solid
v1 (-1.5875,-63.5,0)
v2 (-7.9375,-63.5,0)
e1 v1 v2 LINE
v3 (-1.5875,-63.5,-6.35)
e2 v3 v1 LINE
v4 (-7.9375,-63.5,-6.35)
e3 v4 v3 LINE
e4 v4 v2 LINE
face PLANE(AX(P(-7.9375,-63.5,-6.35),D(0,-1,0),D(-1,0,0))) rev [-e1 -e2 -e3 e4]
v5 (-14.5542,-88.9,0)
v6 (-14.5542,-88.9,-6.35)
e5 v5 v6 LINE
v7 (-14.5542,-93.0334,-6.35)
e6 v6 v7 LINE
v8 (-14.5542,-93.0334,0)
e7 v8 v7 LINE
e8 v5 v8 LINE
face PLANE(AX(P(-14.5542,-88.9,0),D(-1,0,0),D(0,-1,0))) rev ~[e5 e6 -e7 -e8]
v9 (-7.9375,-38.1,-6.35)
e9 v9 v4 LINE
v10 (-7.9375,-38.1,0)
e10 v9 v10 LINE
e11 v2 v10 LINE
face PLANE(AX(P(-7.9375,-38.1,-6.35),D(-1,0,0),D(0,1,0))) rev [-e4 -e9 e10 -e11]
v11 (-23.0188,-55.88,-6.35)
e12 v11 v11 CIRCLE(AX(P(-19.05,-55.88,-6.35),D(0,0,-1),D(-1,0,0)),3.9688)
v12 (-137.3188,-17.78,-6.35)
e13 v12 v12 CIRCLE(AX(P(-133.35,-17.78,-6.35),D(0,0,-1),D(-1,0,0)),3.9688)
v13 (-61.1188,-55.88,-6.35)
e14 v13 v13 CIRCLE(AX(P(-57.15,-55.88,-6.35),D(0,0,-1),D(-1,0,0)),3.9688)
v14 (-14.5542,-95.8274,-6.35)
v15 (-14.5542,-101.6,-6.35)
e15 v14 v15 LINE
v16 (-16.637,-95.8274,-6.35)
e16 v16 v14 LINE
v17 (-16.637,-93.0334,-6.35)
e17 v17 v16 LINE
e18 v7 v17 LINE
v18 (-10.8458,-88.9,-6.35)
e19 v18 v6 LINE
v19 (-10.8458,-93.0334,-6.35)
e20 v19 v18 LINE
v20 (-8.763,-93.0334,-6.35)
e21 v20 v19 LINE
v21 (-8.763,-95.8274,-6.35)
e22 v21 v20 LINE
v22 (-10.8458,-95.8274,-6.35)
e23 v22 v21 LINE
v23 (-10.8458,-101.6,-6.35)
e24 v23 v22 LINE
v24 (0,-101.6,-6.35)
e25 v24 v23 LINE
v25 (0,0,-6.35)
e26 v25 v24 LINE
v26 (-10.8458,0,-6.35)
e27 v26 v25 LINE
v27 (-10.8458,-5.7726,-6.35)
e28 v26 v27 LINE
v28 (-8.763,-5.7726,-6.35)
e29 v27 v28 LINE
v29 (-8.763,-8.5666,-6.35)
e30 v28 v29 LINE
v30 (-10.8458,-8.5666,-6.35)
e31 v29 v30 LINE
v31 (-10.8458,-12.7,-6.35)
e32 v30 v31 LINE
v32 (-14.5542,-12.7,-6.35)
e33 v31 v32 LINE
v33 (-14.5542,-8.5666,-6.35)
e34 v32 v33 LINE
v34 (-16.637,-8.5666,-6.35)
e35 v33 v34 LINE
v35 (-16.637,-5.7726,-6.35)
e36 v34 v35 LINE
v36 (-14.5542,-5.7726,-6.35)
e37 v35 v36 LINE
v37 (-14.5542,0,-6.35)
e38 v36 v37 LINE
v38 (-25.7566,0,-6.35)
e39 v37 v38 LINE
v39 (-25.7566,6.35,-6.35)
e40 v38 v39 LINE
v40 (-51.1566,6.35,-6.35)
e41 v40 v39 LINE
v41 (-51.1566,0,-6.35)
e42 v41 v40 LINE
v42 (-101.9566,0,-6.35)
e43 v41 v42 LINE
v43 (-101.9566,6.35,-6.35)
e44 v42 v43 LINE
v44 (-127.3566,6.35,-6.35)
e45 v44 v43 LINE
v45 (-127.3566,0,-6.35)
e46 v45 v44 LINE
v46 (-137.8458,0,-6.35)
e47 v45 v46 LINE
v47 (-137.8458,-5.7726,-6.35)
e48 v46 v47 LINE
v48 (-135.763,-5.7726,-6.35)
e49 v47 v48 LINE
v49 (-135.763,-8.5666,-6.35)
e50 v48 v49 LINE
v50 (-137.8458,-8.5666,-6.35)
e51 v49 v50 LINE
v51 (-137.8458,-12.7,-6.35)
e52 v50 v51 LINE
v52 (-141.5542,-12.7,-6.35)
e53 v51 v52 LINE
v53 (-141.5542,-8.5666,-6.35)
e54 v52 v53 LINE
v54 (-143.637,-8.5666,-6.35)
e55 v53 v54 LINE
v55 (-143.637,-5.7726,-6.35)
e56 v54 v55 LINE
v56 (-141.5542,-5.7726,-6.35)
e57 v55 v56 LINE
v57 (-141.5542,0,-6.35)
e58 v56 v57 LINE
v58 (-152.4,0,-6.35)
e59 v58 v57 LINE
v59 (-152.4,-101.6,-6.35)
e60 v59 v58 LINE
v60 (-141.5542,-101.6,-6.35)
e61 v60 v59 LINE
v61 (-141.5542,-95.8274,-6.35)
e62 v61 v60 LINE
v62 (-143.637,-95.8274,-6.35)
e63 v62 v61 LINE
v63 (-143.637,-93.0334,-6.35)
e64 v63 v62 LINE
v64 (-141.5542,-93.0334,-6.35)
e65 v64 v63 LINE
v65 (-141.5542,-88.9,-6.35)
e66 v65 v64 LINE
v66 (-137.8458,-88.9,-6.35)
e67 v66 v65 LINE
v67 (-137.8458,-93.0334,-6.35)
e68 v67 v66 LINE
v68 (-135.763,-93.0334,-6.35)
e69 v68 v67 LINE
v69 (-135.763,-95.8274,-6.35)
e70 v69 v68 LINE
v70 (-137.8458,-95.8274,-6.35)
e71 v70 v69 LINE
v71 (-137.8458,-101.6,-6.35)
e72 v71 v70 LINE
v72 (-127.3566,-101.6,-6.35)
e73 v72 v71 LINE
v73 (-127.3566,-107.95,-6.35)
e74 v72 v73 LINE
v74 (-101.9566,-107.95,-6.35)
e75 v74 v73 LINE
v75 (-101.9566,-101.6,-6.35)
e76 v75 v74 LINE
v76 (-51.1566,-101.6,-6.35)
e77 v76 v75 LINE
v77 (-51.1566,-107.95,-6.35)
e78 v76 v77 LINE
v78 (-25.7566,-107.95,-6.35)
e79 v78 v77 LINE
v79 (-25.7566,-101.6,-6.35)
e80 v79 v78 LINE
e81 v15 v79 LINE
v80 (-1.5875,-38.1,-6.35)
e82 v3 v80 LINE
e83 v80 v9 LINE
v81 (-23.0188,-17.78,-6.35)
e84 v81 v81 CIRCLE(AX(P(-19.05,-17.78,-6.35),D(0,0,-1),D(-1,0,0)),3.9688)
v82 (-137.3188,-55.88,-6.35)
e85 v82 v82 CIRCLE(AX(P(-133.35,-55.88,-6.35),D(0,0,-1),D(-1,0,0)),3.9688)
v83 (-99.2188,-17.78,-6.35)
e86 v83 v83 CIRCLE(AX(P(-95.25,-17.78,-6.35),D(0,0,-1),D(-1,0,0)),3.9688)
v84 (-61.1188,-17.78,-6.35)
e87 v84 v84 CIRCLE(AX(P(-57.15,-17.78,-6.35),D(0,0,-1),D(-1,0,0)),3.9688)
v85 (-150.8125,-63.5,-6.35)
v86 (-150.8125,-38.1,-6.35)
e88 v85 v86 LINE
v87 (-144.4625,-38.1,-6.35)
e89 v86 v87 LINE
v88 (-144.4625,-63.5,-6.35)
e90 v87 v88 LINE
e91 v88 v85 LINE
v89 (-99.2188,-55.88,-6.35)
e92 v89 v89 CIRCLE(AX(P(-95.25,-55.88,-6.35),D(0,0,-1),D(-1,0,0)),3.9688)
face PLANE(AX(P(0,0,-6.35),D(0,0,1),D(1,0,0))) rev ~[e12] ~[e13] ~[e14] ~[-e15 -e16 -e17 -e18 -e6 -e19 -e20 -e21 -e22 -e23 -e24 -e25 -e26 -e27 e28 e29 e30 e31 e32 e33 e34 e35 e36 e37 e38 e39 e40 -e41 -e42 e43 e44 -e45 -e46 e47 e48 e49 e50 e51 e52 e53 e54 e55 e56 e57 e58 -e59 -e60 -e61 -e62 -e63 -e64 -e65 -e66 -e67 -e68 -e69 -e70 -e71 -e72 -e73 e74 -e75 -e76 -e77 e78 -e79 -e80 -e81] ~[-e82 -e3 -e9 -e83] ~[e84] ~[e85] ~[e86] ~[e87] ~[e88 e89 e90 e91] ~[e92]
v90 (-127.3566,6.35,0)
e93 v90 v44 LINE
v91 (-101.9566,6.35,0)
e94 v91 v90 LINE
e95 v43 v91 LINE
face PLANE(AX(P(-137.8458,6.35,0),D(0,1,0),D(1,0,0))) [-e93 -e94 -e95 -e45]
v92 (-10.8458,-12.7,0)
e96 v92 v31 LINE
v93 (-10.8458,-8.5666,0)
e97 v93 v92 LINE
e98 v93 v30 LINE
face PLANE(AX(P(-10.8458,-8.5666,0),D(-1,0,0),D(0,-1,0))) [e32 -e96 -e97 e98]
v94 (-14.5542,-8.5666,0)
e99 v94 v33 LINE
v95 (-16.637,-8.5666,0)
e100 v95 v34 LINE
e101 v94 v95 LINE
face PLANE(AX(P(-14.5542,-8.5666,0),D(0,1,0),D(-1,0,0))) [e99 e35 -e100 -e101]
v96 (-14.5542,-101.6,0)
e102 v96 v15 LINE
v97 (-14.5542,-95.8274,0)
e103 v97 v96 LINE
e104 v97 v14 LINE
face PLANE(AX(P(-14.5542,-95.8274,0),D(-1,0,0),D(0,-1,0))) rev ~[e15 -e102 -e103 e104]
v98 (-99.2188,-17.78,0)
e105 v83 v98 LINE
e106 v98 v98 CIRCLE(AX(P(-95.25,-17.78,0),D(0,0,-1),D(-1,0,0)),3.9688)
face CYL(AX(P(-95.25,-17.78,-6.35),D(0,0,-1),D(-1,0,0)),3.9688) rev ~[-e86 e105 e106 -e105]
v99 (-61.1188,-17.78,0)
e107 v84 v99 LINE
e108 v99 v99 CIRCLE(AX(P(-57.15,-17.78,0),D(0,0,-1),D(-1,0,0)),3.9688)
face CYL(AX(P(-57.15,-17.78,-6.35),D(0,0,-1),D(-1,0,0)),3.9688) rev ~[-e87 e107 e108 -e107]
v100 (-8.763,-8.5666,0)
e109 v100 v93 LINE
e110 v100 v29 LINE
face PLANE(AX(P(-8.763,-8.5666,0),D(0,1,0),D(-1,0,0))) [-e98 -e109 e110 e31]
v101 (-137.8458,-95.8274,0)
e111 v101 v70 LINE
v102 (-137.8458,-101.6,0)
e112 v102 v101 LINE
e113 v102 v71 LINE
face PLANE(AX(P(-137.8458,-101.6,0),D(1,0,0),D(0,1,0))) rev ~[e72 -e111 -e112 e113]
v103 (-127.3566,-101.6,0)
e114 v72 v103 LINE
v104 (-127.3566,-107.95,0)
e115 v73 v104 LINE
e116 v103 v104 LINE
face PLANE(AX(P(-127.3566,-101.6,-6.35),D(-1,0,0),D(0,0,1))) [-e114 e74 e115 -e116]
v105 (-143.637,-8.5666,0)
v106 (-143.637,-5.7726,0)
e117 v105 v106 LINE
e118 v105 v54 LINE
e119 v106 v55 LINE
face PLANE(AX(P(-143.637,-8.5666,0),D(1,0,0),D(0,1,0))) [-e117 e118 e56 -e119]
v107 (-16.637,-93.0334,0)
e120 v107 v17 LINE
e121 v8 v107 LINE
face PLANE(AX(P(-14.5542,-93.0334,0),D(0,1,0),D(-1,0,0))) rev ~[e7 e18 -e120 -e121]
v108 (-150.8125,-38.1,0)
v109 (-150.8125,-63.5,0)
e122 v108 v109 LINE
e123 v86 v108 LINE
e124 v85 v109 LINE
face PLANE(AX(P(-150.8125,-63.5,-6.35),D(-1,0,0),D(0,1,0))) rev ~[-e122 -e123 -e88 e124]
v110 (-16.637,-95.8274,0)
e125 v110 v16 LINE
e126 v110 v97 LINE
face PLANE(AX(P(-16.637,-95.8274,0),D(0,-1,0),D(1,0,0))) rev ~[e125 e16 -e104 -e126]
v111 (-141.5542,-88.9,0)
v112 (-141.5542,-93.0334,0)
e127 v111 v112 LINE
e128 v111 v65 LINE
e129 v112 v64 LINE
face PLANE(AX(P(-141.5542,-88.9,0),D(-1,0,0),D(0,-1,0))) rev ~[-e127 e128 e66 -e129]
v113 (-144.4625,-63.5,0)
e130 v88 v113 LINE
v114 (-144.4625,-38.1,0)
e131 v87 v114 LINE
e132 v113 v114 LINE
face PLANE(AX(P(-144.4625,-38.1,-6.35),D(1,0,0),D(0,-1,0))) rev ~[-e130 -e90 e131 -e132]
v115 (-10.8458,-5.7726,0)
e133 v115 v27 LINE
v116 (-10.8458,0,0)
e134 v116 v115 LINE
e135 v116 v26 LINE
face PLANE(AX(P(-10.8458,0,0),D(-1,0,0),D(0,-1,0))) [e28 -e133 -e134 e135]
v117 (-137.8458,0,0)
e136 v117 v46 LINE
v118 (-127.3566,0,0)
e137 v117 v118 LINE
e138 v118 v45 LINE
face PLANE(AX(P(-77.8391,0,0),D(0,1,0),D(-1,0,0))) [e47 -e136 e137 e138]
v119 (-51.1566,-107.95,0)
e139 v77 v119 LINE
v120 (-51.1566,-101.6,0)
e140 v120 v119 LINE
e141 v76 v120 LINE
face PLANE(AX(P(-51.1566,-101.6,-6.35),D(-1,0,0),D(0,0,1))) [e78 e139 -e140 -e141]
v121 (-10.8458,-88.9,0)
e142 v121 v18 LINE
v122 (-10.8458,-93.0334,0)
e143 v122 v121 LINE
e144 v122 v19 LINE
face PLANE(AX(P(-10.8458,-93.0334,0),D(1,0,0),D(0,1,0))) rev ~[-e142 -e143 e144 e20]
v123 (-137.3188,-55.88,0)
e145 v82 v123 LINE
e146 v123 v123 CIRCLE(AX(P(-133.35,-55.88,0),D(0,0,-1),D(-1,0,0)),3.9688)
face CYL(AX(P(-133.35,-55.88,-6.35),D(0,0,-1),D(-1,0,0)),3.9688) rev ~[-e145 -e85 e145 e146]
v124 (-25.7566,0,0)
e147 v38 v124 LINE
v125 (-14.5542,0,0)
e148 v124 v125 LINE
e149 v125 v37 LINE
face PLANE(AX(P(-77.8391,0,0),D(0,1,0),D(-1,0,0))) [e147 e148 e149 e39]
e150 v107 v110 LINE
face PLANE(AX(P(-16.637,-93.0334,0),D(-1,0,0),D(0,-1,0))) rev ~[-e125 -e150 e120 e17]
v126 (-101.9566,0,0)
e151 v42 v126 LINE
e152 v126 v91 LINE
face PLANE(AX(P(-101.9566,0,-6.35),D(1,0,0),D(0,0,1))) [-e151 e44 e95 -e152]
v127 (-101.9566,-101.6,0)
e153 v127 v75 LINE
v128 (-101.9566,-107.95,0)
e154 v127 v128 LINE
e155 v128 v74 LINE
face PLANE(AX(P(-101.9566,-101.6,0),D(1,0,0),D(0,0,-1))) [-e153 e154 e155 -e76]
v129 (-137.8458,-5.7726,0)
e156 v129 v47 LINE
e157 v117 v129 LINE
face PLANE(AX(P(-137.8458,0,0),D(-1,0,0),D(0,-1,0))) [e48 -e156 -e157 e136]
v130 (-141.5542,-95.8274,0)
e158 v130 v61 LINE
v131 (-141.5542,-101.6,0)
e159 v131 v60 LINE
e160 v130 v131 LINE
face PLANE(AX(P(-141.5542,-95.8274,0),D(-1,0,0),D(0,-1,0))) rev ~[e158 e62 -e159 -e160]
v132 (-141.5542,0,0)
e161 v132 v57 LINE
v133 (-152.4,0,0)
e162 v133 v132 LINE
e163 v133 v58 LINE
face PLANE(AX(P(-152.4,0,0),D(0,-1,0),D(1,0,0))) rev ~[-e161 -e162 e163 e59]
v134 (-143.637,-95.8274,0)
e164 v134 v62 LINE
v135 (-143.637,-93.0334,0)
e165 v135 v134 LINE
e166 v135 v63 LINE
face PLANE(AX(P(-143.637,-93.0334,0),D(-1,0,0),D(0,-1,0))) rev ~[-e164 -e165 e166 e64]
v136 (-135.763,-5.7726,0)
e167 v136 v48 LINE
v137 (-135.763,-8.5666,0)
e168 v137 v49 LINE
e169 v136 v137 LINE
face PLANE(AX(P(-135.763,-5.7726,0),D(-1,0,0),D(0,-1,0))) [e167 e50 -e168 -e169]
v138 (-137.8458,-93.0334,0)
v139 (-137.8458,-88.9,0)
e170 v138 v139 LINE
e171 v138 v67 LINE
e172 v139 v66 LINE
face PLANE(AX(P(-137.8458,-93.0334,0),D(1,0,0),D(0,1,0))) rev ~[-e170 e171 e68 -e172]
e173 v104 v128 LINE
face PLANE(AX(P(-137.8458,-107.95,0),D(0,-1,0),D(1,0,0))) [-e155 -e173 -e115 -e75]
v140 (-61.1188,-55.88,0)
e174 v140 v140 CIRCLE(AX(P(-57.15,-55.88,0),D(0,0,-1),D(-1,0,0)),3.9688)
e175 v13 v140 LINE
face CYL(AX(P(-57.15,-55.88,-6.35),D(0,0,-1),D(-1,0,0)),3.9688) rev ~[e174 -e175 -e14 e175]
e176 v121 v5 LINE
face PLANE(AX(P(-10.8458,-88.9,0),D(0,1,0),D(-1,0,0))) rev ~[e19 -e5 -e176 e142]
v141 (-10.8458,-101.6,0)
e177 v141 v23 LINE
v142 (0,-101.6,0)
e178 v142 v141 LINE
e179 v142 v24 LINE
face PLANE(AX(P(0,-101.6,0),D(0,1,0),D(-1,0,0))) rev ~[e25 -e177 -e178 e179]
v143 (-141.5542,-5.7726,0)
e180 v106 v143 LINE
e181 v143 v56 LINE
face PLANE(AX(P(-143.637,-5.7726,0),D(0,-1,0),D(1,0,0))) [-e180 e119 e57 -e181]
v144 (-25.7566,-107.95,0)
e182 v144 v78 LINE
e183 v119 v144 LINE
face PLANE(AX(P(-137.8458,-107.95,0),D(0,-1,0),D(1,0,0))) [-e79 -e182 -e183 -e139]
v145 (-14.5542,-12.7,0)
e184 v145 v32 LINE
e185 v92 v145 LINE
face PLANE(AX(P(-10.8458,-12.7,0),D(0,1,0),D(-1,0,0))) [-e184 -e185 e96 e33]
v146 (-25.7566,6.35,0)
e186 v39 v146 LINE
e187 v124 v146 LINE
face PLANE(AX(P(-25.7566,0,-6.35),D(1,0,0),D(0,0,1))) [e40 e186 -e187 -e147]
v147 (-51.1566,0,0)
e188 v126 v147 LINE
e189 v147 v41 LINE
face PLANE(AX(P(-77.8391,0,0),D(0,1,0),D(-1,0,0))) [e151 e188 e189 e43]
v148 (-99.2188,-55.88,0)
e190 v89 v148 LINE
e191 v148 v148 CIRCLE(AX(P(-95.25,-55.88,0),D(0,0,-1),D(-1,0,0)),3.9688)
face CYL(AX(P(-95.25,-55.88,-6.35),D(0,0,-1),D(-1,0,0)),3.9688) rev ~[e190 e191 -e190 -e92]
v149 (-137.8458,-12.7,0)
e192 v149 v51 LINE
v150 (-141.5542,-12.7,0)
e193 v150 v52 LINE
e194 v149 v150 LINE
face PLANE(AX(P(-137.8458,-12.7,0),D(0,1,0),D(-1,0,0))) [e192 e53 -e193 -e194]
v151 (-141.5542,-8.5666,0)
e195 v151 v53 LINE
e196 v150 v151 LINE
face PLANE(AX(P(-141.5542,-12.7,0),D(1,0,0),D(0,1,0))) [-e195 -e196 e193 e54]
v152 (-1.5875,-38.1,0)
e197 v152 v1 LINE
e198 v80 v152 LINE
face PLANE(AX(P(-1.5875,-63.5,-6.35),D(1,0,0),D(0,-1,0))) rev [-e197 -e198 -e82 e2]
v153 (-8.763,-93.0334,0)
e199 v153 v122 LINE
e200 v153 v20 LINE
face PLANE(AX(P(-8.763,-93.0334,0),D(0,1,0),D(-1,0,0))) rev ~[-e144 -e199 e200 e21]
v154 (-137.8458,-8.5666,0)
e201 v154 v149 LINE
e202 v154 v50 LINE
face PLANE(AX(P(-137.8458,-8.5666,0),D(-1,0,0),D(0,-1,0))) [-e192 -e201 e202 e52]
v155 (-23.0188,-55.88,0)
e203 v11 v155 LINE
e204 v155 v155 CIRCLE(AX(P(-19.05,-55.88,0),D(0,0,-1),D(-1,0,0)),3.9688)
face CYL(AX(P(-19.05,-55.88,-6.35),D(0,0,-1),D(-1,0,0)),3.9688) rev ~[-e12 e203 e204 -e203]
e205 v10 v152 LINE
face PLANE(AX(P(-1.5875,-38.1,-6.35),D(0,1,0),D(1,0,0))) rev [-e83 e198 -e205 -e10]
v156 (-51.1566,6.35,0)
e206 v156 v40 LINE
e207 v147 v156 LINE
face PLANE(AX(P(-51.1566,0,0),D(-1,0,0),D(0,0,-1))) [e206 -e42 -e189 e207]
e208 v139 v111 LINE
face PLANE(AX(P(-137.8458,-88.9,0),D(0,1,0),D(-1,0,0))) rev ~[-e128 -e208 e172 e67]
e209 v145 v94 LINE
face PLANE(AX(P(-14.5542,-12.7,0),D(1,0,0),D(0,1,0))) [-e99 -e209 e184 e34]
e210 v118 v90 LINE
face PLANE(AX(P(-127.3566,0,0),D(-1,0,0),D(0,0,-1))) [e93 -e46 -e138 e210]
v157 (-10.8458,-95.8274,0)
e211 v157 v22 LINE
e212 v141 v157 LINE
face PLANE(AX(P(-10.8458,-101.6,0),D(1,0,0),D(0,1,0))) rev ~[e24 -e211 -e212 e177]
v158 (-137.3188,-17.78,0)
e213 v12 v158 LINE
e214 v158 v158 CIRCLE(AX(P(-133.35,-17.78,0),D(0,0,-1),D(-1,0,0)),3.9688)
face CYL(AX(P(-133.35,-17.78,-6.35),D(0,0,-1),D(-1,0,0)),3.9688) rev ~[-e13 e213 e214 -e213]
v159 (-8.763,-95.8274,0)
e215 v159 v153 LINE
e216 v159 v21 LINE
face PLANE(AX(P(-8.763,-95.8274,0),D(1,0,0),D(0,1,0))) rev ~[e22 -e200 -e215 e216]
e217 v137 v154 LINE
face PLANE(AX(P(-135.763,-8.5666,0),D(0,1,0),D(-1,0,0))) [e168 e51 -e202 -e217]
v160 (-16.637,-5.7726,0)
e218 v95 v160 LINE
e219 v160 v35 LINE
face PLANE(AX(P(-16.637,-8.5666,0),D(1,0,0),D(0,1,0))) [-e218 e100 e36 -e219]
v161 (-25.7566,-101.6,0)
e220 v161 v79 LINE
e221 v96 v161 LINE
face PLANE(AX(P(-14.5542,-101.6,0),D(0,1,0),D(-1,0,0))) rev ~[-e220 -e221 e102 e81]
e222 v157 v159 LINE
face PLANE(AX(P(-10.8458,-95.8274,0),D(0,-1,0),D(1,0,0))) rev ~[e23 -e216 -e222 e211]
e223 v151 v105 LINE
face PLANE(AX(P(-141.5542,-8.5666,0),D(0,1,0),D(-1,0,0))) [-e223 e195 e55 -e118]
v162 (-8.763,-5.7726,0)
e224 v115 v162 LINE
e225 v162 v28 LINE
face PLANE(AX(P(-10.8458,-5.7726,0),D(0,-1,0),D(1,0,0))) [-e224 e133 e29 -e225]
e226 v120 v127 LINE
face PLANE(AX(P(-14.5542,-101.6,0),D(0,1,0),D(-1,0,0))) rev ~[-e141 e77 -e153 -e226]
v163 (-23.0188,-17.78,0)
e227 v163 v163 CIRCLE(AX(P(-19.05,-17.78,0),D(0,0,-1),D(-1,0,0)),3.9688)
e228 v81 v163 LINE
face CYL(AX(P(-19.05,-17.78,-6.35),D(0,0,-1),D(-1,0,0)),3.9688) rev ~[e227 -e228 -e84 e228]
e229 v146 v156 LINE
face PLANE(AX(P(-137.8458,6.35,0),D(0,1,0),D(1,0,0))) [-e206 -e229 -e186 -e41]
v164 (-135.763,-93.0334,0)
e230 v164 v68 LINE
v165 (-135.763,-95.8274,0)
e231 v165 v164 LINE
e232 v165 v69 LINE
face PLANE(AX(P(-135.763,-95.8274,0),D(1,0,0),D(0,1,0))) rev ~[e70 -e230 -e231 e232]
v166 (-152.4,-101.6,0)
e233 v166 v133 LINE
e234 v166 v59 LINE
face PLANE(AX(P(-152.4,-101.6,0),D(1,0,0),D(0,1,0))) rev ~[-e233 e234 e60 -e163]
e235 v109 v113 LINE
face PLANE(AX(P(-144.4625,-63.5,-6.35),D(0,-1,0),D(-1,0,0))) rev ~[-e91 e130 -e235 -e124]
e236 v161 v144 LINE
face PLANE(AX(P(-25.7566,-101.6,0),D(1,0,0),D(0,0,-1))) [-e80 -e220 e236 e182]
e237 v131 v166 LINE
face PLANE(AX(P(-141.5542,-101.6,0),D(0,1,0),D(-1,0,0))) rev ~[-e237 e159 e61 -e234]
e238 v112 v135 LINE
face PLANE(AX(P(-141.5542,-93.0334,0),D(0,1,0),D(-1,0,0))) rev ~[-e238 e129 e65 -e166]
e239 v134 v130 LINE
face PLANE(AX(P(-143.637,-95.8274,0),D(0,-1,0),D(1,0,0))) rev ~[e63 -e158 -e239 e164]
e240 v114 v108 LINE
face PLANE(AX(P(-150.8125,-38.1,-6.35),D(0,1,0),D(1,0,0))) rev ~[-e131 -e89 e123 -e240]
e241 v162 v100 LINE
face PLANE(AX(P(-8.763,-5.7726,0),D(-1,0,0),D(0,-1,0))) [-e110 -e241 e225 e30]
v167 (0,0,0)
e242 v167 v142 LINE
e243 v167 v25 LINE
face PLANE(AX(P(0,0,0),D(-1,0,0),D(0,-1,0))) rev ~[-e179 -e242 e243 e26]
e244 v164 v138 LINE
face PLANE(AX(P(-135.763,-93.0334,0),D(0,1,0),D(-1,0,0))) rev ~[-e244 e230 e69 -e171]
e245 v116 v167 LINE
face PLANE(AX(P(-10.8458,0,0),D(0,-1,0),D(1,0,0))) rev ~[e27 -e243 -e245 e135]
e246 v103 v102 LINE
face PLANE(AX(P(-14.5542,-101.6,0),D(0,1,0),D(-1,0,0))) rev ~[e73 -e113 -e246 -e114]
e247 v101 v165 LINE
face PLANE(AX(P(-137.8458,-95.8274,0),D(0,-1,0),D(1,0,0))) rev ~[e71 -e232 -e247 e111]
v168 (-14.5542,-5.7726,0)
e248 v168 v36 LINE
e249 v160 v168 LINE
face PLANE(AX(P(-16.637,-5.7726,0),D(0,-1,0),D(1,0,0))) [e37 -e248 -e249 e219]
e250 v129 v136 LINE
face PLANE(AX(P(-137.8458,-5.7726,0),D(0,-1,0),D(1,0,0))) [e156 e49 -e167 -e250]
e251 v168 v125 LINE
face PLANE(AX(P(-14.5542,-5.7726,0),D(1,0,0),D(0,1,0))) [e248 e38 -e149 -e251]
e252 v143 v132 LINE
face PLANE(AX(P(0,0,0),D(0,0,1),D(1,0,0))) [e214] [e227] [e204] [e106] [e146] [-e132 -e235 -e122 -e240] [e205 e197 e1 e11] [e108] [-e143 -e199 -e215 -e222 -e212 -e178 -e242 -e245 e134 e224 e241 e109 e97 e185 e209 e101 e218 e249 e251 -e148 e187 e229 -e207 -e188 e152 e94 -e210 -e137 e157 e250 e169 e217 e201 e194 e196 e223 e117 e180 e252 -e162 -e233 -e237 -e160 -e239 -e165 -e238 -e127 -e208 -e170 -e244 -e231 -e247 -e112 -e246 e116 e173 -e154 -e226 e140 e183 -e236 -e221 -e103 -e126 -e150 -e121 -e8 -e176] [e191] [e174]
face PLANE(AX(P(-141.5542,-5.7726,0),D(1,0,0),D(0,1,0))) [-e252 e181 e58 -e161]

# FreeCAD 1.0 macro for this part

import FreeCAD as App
import Part
import Sketcher

V = App.Vector
Q = App.Units.Quantity

doc = App.newDocument("Part")
params = doc.addObject("Spreadsheet::Sheet", "Params")
for row, (alias, value) in enumerate([
    ("sketch1_width", "1 in"),
    ("sketch1_height", "0.25 in"),
    ("pad1_length", "0.25 in"),
    ("sketch2_height", "4 in"),
    ("sketch2_height2", "0.11 in"),
    ("sketch2_width", "0.082 in"),
    ("sketch2_width2", "0.146 in"),
    ("sketch2_width3", "0.427 in"),
    ("pad2_length", "0.25 in"),
    ("sketch3_width", "1 in"),
    ("sketch3_height", "0.25 in"),
    ("pad3_length", "0.25 in"),
    ("sketch4_height", "1 in"),
    ("sketch4_width", "0.25 in"),
    ("sketch5_diameter", "0.3125 in"),
], start=1):
    params.set(f"A{row}", alias)
    params.set(f"B{row}", "=" + value)
    params.setAlias(f"B{row}", alias)

body = doc.addObject("PartDesign::Body", "Body")
body.AllowCompound = True

sketch1 = body.newObject("Sketcher::SketchObject", "Sketch")
sketch1.AttachmentSupport = (doc.getObject("XZ_Plane"), [""])
sketch1.MapMode = "FlatFace"
sketch1.addGeometry([
    Part.LineSegment(V(-127, 0, 0), V(-102, 0, 0)),
    Part.LineSegment(V(-102, 0, 0), V(-102, -6, 0)),
    Part.LineSegment(V(-102, -6, 0), V(-127, -6, 0)),
    Part.LineSegment(V(-127, -6, 0), V(-127, 0, 0)),
    Part.LineSegment(V(-51, 0, 0), V(-26, 0, 0)),
    Part.LineSegment(V(-26, 0, 0), V(-26, -6, 0)),
    Part.LineSegment(V(-26, -6, 0), V(-51, -6, 0)),
    Part.LineSegment(V(-51, -6, 0), V(-51, 0, 0)),
], False)
sketch1.addConstraint([
    Sketcher.Constraint("Coincident", 0, 2, 1, 1),
    Sketcher.Constraint("Coincident", 1, 2, 2, 1),
    Sketcher.Constraint("Coincident", 2, 2, 3, 1),
    Sketcher.Constraint("Coincident", 3, 2, 0, 1),
    Sketcher.Constraint("Coincident", 4, 2, 5, 1),
    Sketcher.Constraint("Coincident", 5, 2, 6, 1),
    Sketcher.Constraint("Coincident", 6, 2, 7, 1),
    Sketcher.Constraint("Coincident", 7, 2, 4, 1),
    Sketcher.Constraint("Horizontal", 0),
    Sketcher.Constraint("Vertical", 1),
    Sketcher.Constraint("Horizontal", 2),
    Sketcher.Constraint("Vertical", 3),
    Sketcher.Constraint("Horizontal", 4),
    Sketcher.Constraint("Vertical", 5),
    Sketcher.Constraint("Horizontal", 6),
    Sketcher.Constraint("Vertical", 7),
    Sketcher.Constraint("PointOnObject", 0, 2, -1),
    Sketcher.Constraint("PointOnObject", 4, 2, -1),
    Sketcher.Constraint("Horizontal", 2, 2, 5, 2),
    Sketcher.Constraint("Equal", 2, 4),
    Sketcher.Constraint("DistanceX", 0, 1, 0, 2, Q("1 in")),
    Sketcher.Constraint("DistanceX", 0, 2, 4, 2, Q("3 in")),
    Sketcher.Constraint("DistanceY", 1, 2, 1, 1, Q("0.25 in")),
    Sketcher.Constraint("DistanceX", 0, 2, -1, 1, Q("101.9566 mm")),
])
sketch1.setExpression("Constraints[20]", "Params.sketch1_width")
sketch1.setExpression("Constraints[22]", "Params.sketch1_height")
pad1 = body.newObject("PartDesign::Pad", "Pad")
pad1.Profile = sketch1
pad1.setExpression("Length", "Params.pad1_length")
pad1.Reversed = True

sketch2 = body.newObject("Sketcher::SketchObject", "Sketch001")
sketch2.AttachmentSupport = (doc.getObject("XY_Plane"), [""])
sketch2.MapMode = "FlatFace"
sketch2.addGeometry([
    Part.LineSegment(V(-137.8, 0, 0), V(-137.8, -5.8, 0)),
    Part.LineSegment(V(-137.8, -5.8, 0), V(-135.8, -5.8, 0)),
    Part.LineSegment(V(-135.8, -5.8, 0), V(-135.8, -8.6, 0)),
    Part.LineSegment(V(-135.8, -8.6, 0), V(-137.8, -8.6, 0)),
    Part.LineSegment(V(-137.8, -8.6, 0), V(-137.8, -12.7, 0)),
    Part.LineSegment(V(-137.8, -12.7, 0), V(-141.6, -12.7, 0)),
    Part.LineSegment(V(-141.6, -12.7, 0), V(-141.6, -8.6, 0)),
    Part.LineSegment(V(-141.6, -8.6, 0), V(-143.6, -8.6, 0)),
    Part.LineSegment(V(-143.6, -8.6, 0), V(-143.6, -5.8, 0)),
    Part.LineSegment(V(-143.6, -5.8, 0), V(-141.6, -5.8, 0)),
    Part.LineSegment(V(-141.6, -5.8, 0), V(-141.6, 0, 0)),
    Part.LineSegment(V(-141.6, 0, 0), V(-152.4, 0, 0)),
    Part.LineSegment(V(-152.4, 0, 0), V(-152.4, -101.6, 0)),
    Part.LineSegment(V(-152.4, -101.6, 0), V(-141.6, -101.6, 0)),
    Part.LineSegment(V(-141.6, -101.6, 0), V(-141.6, -95.8, 0)),
    Part.LineSegment(V(-141.6, -95.8, 0), V(-143.6, -95.8, 0)),
    Part.LineSegment(V(-143.6, -95.8, 0), V(-143.6, -93, 0)),
    Part.LineSegment(V(-143.6, -93, 0), V(-141.6, -93, 0)),
    Part.LineSegment(V(-141.6, -93, 0), V(-141.6, -88.9, 0)),
    Part.LineSegment(V(-141.6, -88.9, 0), V(-137.8, -88.9, 0)),
    Part.LineSegment(V(-137.8, -88.9, 0), V(-137.8, -93, 0)),
    Part.LineSegment(V(-137.8, -93, 0), V(-135.8, -93, 0)),
    Part.LineSegment(V(-135.8, -93, 0), V(-135.8, -95.8, 0)),
    Part.LineSegment(V(-135.8, -95.8, 0), V(-137.8, -95.8, 0)),
    Part.LineSegment(V(-137.8, -95.8, 0), V(-137.8, -101.6, 0)),
    Part.LineSegment(V(-137.8, -101.6, 0), V(-14.6, -101.6, 0)),
    Part.LineSegment(V(-14.6, -101.6, 0), V(-14.6, -95.8, 0)),
    Part.LineSegment(V(-14.6, -95.8, 0), V(-16.6, -95.8, 0)),
    Part.LineSegment(V(-16.6, -95.8, 0), V(-16.6, -93, 0)),
    Part.LineSegment(V(-16.6, -93, 0), V(-14.6, -93, 0)),
    Part.LineSegment(V(-14.6, -93, 0), V(-14.6, -88.9, 0)),
    Part.LineSegment(V(-14.6, -88.9, 0), V(-10.8, -88.9, 0)),
    Part.LineSegment(V(-10.8, -88.9, 0), V(-10.8, -93, 0)),
    Part.LineSegment(V(-10.8, -93, 0), V(-8.8, -93, 0)),
    Part.LineSegment(V(-8.8, -93, 0), V(-8.8, -95.8, 0)),
    Part.LineSegment(V(-8.8, -95.8, 0), V(-10.8, -95.8, 0)),
    Part.LineSegment(V(-10.8, -95.8, 0), V(-10.8, -101.6, 0)),
    Part.LineSegment(V(-10.8, -101.6, 0), V(0, -101.6, 0)),
    Part.LineSegment(V(0, -101.6, 0), V(0, 0, 0)),
    Part.LineSegment(V(0, 0, 0), V(-10.8, 0, 0)),
    Part.LineSegment(V(-10.8, 0, 0), V(-10.8, -5.8, 0)),
    Part.LineSegment(V(-10.8, -5.8, 0), V(-8.8, -5.8, 0)),
    Part.LineSegment(V(-8.8, -5.8, 0), V(-8.8, -8.6, 0)),
    Part.LineSegment(V(-8.8, -8.6, 0), V(-10.8, -8.6, 0)),
    Part.LineSegment(V(-10.8, -8.6, 0), V(-10.8, -12.7, 0)),
    Part.LineSegment(V(-10.8, -12.7, 0), V(-14.6, -12.7, 0)),
    Part.LineSegment(V(-14.6, -12.7, 0), V(-14.6, -8.6, 0)),
    Part.LineSegment(V(-14.6, -8.6, 0), V(-16.6, -8.6, 0)),
    Part.LineSegment(V(-16.6, -8.6, 0), V(-16.6, -5.8, 0)),
    Part.LineSegment(V(-16.6, -5.8, 0), V(-14.6, -5.8, 0)),
    Part.LineSegment(V(-14.6, -5.8, 0), V(-14.6, 0, 0)),
    Part.LineSegment(V(-14.6, 0, 0), V(-137.8, 0, 0)),
], False)
sketch2.addConstraint([
    Sketcher.Constraint("Coincident", 0, 2, 1, 1),
    Sketcher.Constraint("Coincident", 1, 2, 2, 1),
    Sketcher.Constraint("Coincident", 2, 2, 3, 1),
    Sketcher.Constraint("Coincident", 3, 2, 4, 1),
    Sketcher.Constraint("Coincident", 4, 2, 5, 1),
    Sketcher.Constraint("Coincident", 5, 2, 6, 1),
    Sketcher.Constraint("Coincident", 6, 2, 7, 1),
    Sketcher.Constraint("Coincident", 7, 2, 8, 1),
    Sketcher.Constraint("Coincident", 8, 2, 9, 1),
    Sketcher.Constraint("Coincident", 9, 2, 10, 1),
    Sketcher.Constraint("Coincident", 10, 2, 11, 1),
    Sketcher.Constraint("Coincident", 11, 2, 12, 1),
    Sketcher.Constraint("Coincident", 12, 2, 13, 1),
    Sketcher.Constraint("Coincident", 13, 2, 14, 1),
    Sketcher.Constraint("Coincident", 14, 2, 15, 1),
    Sketcher.Constraint("Coincident", 15, 2, 16, 1),
    Sketcher.Constraint("Coincident", 16, 2, 17, 1),
    Sketcher.Constraint("Coincident", 17, 2, 18, 1),
    Sketcher.Constraint("Coincident", 18, 2, 19, 1),
    Sketcher.Constraint("Coincident", 19, 2, 20, 1),
    Sketcher.Constraint("Coincident", 20, 2, 21, 1),
    Sketcher.Constraint("Coincident", 21, 2, 22, 1),
    Sketcher.Constraint("Coincident", 22, 2, 23, 1),
    Sketcher.Constraint("Coincident", 23, 2, 24, 1),
    Sketcher.Constraint("Coincident", 24, 2, 25, 1),
    Sketcher.Constraint("Coincident", 25, 2, 26, 1),
    Sketcher.Constraint("Coincident", 26, 2, 27, 1),
    Sketcher.Constraint("Coincident", 27, 2, 28, 1),
    Sketcher.Constraint("Coincident", 28, 2, 29, 1),
    Sketcher.Constraint("Coincident", 29, 2, 30, 1),
    Sketcher.Constraint("Coincident", 30, 2, 31, 1),
    Sketcher.Constraint("Coincident", 31, 2, 32, 1),
    Sketcher.Constraint("Coincident", 32, 2, 33, 1),
    Sketcher.Constraint("Coincident", 33, 2, 34, 1),
    Sketcher.Constraint("Coincident", 34, 2, 35, 1),
    Sketcher.Constraint("Coincident", 35, 2, 36, 1),
    Sketcher.Constraint("Coincident", 36, 2, 37, 1),
    Sketcher.Constraint("Coincident", 37, 2, 38, 1),
    Sketcher.Constraint("Coincident", 38, 2, 39, 1),
    Sketcher.Constraint("Coincident", 39, 2, 40, 1),
    Sketcher.Constraint("Coincident", 40, 2, 41, 1),
    Sketcher.Constraint("Coincident", 41, 2, 42, 1),
    Sketcher.Constraint("Coincident", 42, 2, 43, 1),
    Sketcher.Constraint("Coincident", 43, 2, 44, 1),
    Sketcher.Constraint("Coincident", 44, 2, 45, 1),
    Sketcher.Constraint("Coincident", 45, 2, 46, 1),
    Sketcher.Constraint("Coincident", 46, 2, 47, 1),
    Sketcher.Constraint("Coincident", 47, 2, 48, 1),
    Sketcher.Constraint("Coincident", 48, 2, 49, 1),
    Sketcher.Constraint("Coincident", 49, 2, 50, 1),
    Sketcher.Constraint("Coincident", 50, 2, 51, 1),
    Sketcher.Constraint("Coincident", 51, 2, 0, 1),
    Sketcher.Constraint("Vertical", 0),
    Sketcher.Constraint("Horizontal", 1),
    Sketcher.Constraint("Vertical", 2),
    Sketcher.Constraint("Horizontal", 3),
    Sketcher.Constraint("Vertical", 4),
    Sketcher.Constraint("Horizontal", 5),
    Sketcher.Constraint("Vertical", 6),
    Sketcher.Constraint("Horizontal", 7),
    Sketcher.Constraint("Vertical", 8),
    Sketcher.Constraint("Horizontal", 9),
    Sketcher.Constraint("Vertical", 10),
    Sketcher.Constraint("Horizontal", 11),
    Sketcher.Constraint("Vertical", 12),
    Sketcher.Constraint("Horizontal", 13),
    Sketcher.Constraint("Vertical", 14),
    Sketcher.Constraint("Horizontal", 15),
    Sketcher.Constraint("Vertical", 16),
    Sketcher.Constraint("Horizontal", 17),
    Sketcher.Constraint("Vertical", 18),
    Sketcher.Constraint("Horizontal", 19),
    Sketcher.Constraint("Vertical", 20),
    Sketcher.Constraint("Horizontal", 21),
    Sketcher.Constraint("Vertical", 22),
    Sketcher.Constraint("Horizontal", 23),
    Sketcher.Constraint("Vertical", 24),
    Sketcher.Constraint("Horizontal", 25),
    Sketcher.Constraint("Vertical", 26),
    Sketcher.Constraint("Horizontal", 27),
    Sketcher.Constraint("Vertical", 28),
    Sketcher.Constraint("Horizontal", 29),
    Sketcher.Constraint("Vertical", 30),
    Sketcher.Constraint("Horizontal", 31),
    Sketcher.Constraint("Vertical", 32),
    Sketcher.Constraint("Horizontal", 33),
    Sketcher.Constraint("Vertical", 34),
    Sketcher.Constraint("Horizontal", 35),
    Sketcher.Constraint("Vertical", 36),
    Sketcher.Constraint("Horizontal", 37),
    Sketcher.Constraint("Vertical", 38),
    Sketcher.Constraint("Horizontal", 39),
    Sketcher.Constraint("Vertical", 40),
    Sketcher.Constraint("Horizontal", 41),
    Sketcher.Constraint("Vertical", 42),
    Sketcher.Constraint("Horizontal", 43),
    Sketcher.Constraint("Vertical", 44),
    Sketcher.Constraint("Horizontal", 45),
    Sketcher.Constraint("Vertical", 46),
    Sketcher.Constraint("Horizontal", 47),
    Sketcher.Constraint("Vertical", 48),
    Sketcher.Constraint("Horizontal", 49),
    Sketcher.Constraint("Vertical", 50),
    Sketcher.Constraint("Horizontal", 51),
    Sketcher.Constraint("Coincident", 38, 2, -1, 1),
    Sketcher.Constraint("PointOnObject", 10, 2, -1),
    Sketcher.Constraint("PointOnObject", 50, 2, -1),
    Sketcher.Constraint("Horizontal", 3, 2, 6, 2),
    Sketcher.Constraint("Horizontal", 1, 2, 8, 2),
    Sketcher.Constraint("Horizontal", 17, 2, 20, 2),
    Sketcher.Constraint("Horizontal", 15, 2, 22, 2),
    Sketcher.Constraint("Horizontal", 13, 2, 24, 2),
    Sketcher.Constraint("Horizontal", 23, 2, 26, 2),
    Sketcher.Constraint("Horizontal", 21, 2, 28, 2),
    Sketcher.Constraint("Horizontal", 19, 2, 30, 2),
    Sketcher.Constraint("Horizontal", 29, 2, 32, 2),
    Sketcher.Constraint("Horizontal", 27, 2, 34, 2),
    Sketcher.Constraint("Horizontal", 25, 2, 36, 2),
    Sketcher.Constraint("Horizontal", 9, 2, 40, 2),
    Sketcher.Constraint("Horizontal", 7, 2, 42, 2),
    Sketcher.Constraint("Horizontal", 5, 2, 44, 2),
    Sketcher.Constraint("Horizontal", 43, 2, 46, 2),
    Sketcher.Constraint("Horizontal", 41, 2, 48, 2),
    Sketcher.Constraint("Vertical", 0, 2, 3, 2),
    Sketcher.Constraint("Vertical", 6, 2, 9, 2),
    Sketcher.Constraint("Vertical", 10, 2, 13, 2),
    Sketcher.Constraint("Vertical", 8, 2, 15, 2),
    Sketcher.Constraint("Vertical", 14, 2, 17, 2),
    Sketcher.Constraint("Vertical", 4, 2, 19, 2),
    Sketcher.Constraint("Vertical", 2, 2, 21, 2),
    Sketcher.Constraint("Vertical", 20, 2, 23, 2),
    Sketcher.Constraint("Vertical", 26, 2, 29, 2),
    Sketcher.Constraint("Vertical", 32, 2, 35, 2),
    Sketcher.Constraint("Vertical", 36, 2, 39, 2),
    Sketcher.Constraint("Vertical", 34, 2, 41, 2),
    Sketcher.Constraint("Vertical", 40, 2, 43, 2),
    Sketcher.Constraint("Vertical", 30, 2, 45, 2),
    Sketcher.Constraint("Vertical", 28, 2, 47, 2),
    Sketcher.Constraint("Vertical", 46, 2, 49, 2),
    Sketcher.Constraint("Equal", 3, 7),
    Sketcher.Constraint("Equal", 23, 27),
    Sketcher.Constraint("Equal", 19, 31),
    Sketcher.Constraint("Equal", 29, 33),
    Sketcher.Constraint("Equal", 13, 37),
    Sketcher.Constraint("Equal", 10, 14),
    Sketcher.Constraint("Equal", 8, 16),
    Sketcher.Constraint("Equal", 6, 18),
    Sketcher.Constraint("DistanceY", 12, 2, 12, 1, Q("4 in")),
    Sketcher.Constraint("DistanceY", 2, 2, 2, 1, Q("0.11 in")),
    Sketcher.Constraint("DistanceY", 4, 2, -1, 1, Q("0.5 in")),
    Sketcher.Constraint("DistanceX", 1, 1, 1, 2, Q("0.082 in")),
    Sketcher.Constraint("DistanceX", 11, 2, -1, 1, Q("6 in")),
    Sketcher.Constraint("DistanceX", 5, 2, 5, 1, Q("0.146 in")),
    Sketcher.Constraint("DistanceX", 11, 2, 11, 1, Q("0.427 in")),
    Sketcher.Constraint("DistanceY", 0, 2, 0, 1, Q("5.7726 mm")),
])
sketch2.setExpression("Constraints[147]", "Params.sketch2_height")
sketch2.setExpression("Constraints[148]", "Params.sketch2_height2")
sketch2.setExpression("Constraints[150]", "Params.sketch2_width")
sketch2.setExpression("Constraints[152]", "Params.sketch2_width2")
sketch2.setExpression("Constraints[153]", "Params.sketch2_width3")
pad2 = body.newObject("PartDesign::Pad", "Pad001")
pad2.Profile = sketch2
pad2.setExpression("Length", "Params.pad2_length")
pad2.Reversed = True

sketch3 = body.newObject("Sketcher::SketchObject", "Sketch002")
sketch3.AttachmentSupport = (doc.getObject("XZ_Plane"), [""])
sketch3.MapMode = "FlatFace"
sketch3.AttachmentOffset = App.Placement(V(0, 0, 4 * 25.4), App.Rotation())
sketch3.addGeometry([
    Part.LineSegment(V(-102, -6, 0), V(-102, 0, 0)),
    Part.LineSegment(V(-102, 0, 0), V(-127, 0, 0)),
    Part.LineSegment(V(-127, 0, 0), V(-127, -6, 0)),
    Part.LineSegment(V(-127, -6, 0), V(-102, -6, 0)),
    Part.LineSegment(V(-26, -6, 0), V(-26, 0, 0)),
    Part.LineSegment(V(-26, 0, 0), V(-51, 0, 0)),
    Part.LineSegment(V(-51, 0, 0), V(-51, -6, 0)),
    Part.LineSegment(V(-51, -6, 0), V(-26, -6, 0)),
], False)
sketch3.addConstraint([
    Sketcher.Constraint("Coincident", 0, 2, 1, 1),
    Sketcher.Constraint("Coincident", 1, 2, 2, 1),
    Sketcher.Constraint("Coincident", 2, 2, 3, 1),
    Sketcher.Constraint("Coincident", 3, 2, 0, 1),
    Sketcher.Constraint("Coincident", 4, 2, 5, 1),
    Sketcher.Constraint("Coincident", 5, 2, 6, 1),
    Sketcher.Constraint("Coincident", 6, 2, 7, 1),
    Sketcher.Constraint("Coincident", 7, 2, 4, 1),
    Sketcher.Constraint("Vertical", 0),
    Sketcher.Constraint("Horizontal", 1),
    Sketcher.Constraint("Vertical", 2),
    Sketcher.Constraint("Horizontal", 3),
    Sketcher.Constraint("Vertical", 4),
    Sketcher.Constraint("Horizontal", 5),
    Sketcher.Constraint("Vertical", 6),
    Sketcher.Constraint("Horizontal", 7),
    Sketcher.Constraint("PointOnObject", 0, 2, -1),
    Sketcher.Constraint("PointOnObject", 4, 2, -1),
    Sketcher.Constraint("Horizontal", 3, 2, 6, 2),
    Sketcher.Constraint("Equal", 3, 5),
    Sketcher.Constraint("DistanceX", 1, 2, 1, 1, Q("1 in")),
    Sketcher.Constraint("DistanceX", 0, 2, 4, 2, Q("3 in")),
    Sketcher.Constraint("DistanceY", 0, 1, 0, 2, Q("0.25 in")),
    Sketcher.Constraint("DistanceX", 0, 2, -1, 1, Q("101.9566 mm")),
])
sketch3.setExpression("Constraints[20]", "Params.sketch3_width")
sketch3.setExpression("Constraints[22]", "Params.sketch3_height")
pad3 = body.newObject("PartDesign::Pad", "Pad002")
pad3.Profile = sketch3
pad3.setExpression("Length", "Params.pad3_length")

sketch4 = body.newObject("Sketcher::SketchObject", "Sketch003")
sketch4.AttachmentSupport = (doc.getObject("XY_Plane"), [""])
sketch4.MapMode = "FlatFace"
sketch4.AttachmentOffset = App.Placement(V(0, 0, -0.25 * 25.4), App.Rotation())
sketch4.addGeometry([
    Part.LineSegment(V(-144, -64, 0), V(-151, -64, 0)),
    Part.LineSegment(V(-151, -64, 0), V(-151, -38, 0)),
    Part.LineSegment(V(-151, -38, 0), V(-144, -38, 0)),
    Part.LineSegment(V(-144, -38, 0), V(-144, -64, 0)),
], False)
sketch4.addConstraint([
    Sketcher.Constraint("Coincident", 0, 2, 1, 1),
    Sketcher.Constraint("Coincident", 1, 2, 2, 1),
    Sketcher.Constraint("Coincident", 2, 2, 3, 1),
    Sketcher.Constraint("Coincident", 3, 2, 0, 1),
    Sketcher.Constraint("Horizontal", 0),
    Sketcher.Constraint("Vertical", 1),
    Sketcher.Constraint("Horizontal", 2),
    Sketcher.Constraint("Vertical", 3),
    Sketcher.Constraint("DistanceY", 1, 1, 1, 2, Q("1 in")),
    Sketcher.Constraint("DistanceX", 0, 2, 0, 1, Q("0.25 in")),
    Sketcher.Constraint("DistanceY", 0, 2, -1, 1, Q("2.5 in")),
    Sketcher.Constraint("DistanceX", 0, 2, -1, 1, Q("5.9375 in")),
])
sketch4.setExpression("Constraints[8]", "Params.sketch4_height")
sketch4.setExpression("Constraints[9]", "Params.sketch4_width")
pocket1 = body.newObject("PartDesign::Pocket", "Pocket")
pocket1.Profile = sketch4
pocket1.Type = "ThroughAll"
pocket1.Reversed = True
doc.recompute()

datumplane = body.newObject("PartDesign::Plane", "DatumPlane")
datumplane.AttachmentSupport = (doc.getObject("YZ_Plane"), [""])
datumplane.MapMode = "FlatFace"
datumplane.AttachmentOffset = App.Placement(V(0, 0, -3 * 25.4), App.Rotation())
mirrored = body.newObject("PartDesign::Mirrored", "Mirrored")
mirrored.Originals = [pocket1]
mirrored.MirrorPlane = (datumplane, [""])
body.Tip = mirrored

sketch5 = body.newObject("Sketcher::SketchObject", "Sketch004")
sketch5.AttachmentSupport = (doc.getObject("XY_Plane"), [""])
sketch5.MapMode = "FlatFace"
sketch5.AttachmentOffset = App.Placement(V(0, 0, -0.25 * 25.4), App.Rotation())
sketch5.addGeometry([
    Part.Circle(V(-133.3, -17.8, 0), V(0, 0, 1), 4),
    Part.Circle(V(-95.2, -17.8, 0), V(0, 0, 1), 4),
    Part.Circle(V(-57.1, -17.8, 0), V(0, 0, 1), 4),
    Part.Circle(V(-19.1, -17.8, 0), V(0, 0, 1), 4),
    Part.Circle(V(-133.3, -55.9, 0), V(0, 0, 1), 4),
    Part.Circle(V(-95.2, -55.9, 0), V(0, 0, 1), 4),
    Part.Circle(V(-57.1, -55.9, 0), V(0, 0, 1), 4),
    Part.Circle(V(-19.1, -55.9, 0), V(0, 0, 1), 4),
], False)
sketch5.addConstraint([
    Sketcher.Constraint("Equal", 0, 1),
    Sketcher.Constraint("Equal", 1, 2),
    Sketcher.Constraint("Equal", 2, 3),
    Sketcher.Constraint("Equal", 3, 4),
    Sketcher.Constraint("Equal", 4, 5),
    Sketcher.Constraint("Equal", 5, 6),
    Sketcher.Constraint("Equal", 6, 7),
    Sketcher.Constraint("Horizontal", 0, 3, 1, 3),
    Sketcher.Constraint("Horizontal", 1, 3, 2, 3),
    Sketcher.Constraint("Horizontal", 2, 3, 3, 3),
    Sketcher.Constraint("Horizontal", 4, 3, 5, 3),
    Sketcher.Constraint("Horizontal", 5, 3, 6, 3),
    Sketcher.Constraint("Horizontal", 6, 3, 7, 3),
    Sketcher.Constraint("Vertical", 0, 3, 4, 3),
    Sketcher.Constraint("Vertical", 1, 3, 5, 3),
    Sketcher.Constraint("Vertical", 2, 3, 6, 3),
    Sketcher.Constraint("Vertical", 3, 3, 7, 3),
    Sketcher.Constraint("Diameter", 0, Q("0.3125 in")),
    Sketcher.Constraint("DistanceY", 0, 3, -1, 1, Q("0.7 in")),
    Sketcher.Constraint("DistanceX", 0, 3, 1, 3, Q("1.5 in")),
    Sketcher.Constraint("DistanceX", 1, 3, 2, 3, Q("1.5 in")),
    Sketcher.Constraint("DistanceX", 2, 3, 3, 3, Q("1.5 in")),
    Sketcher.Constraint("DistanceY", 4, 3, 0, 3, Q("1.5 in")),
    Sketcher.Constraint("DistanceX", 3, 3, -1, 1, Q("0.75 in")),
])
sketch5.setExpression("Constraints[17]", "Params.sketch5_diameter")
pocket2 = body.newObject("PartDesign::Pocket", "Pocket001")
pocket2.Profile = sketch5
pocket2.Type = "ThroughAll"
pocket2.Reversed = True

doc.recompute()
